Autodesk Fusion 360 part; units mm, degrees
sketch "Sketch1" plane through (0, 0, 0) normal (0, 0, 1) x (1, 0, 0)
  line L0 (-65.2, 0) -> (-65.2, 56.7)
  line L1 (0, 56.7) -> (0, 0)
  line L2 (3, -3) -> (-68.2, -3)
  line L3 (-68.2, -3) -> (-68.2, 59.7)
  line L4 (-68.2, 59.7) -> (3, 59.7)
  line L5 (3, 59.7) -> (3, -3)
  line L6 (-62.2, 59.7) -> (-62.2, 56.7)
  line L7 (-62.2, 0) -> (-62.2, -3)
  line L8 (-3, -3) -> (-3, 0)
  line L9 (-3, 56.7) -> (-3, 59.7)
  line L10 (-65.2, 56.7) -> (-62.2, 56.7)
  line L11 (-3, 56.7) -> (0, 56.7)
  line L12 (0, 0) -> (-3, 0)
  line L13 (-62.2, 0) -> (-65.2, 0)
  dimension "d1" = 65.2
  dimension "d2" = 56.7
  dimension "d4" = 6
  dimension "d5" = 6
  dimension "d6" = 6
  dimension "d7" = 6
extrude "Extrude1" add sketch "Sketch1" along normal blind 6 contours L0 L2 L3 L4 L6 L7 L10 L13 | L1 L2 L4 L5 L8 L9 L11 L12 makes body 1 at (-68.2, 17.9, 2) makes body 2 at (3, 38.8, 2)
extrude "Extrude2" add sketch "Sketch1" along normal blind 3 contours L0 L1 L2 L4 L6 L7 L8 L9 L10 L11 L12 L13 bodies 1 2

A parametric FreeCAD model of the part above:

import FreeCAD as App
import Part
import Sketcher
Q = App.Units.Quantity


def add_polygon(sketch, points):
    """Adds a closed chain of lines whose ends are joined by coincident constraints."""
    first, n = sketch.GeometryCount, len(points)
    for a, b in zip(points, points[1:] + points[:1]):
        sketch.addGeometry(Part.LineSegment(App.Vector(*a, 0), App.Vector(*b, 0)), False)
    for i in range(n):
        sketch.addConstraint(Sketcher.Constraint("Coincident", first + i, 2, first + (i + 1) % n, 1))

doc = App.newDocument("Part")
body = doc.addObject("PartDesign::Body", "Body")
body.AllowCompound = True

# Sketch on XY plane
sketch1 = doc.addObject("Sketcher::SketchObject", "Sketch")
body.addObject(sketch1)
sketch1.AttachmentSupport = (doc.XY_Plane, [""])
sketch1.MapMode = "FlatFace"
add_polygon(sketch1, [(-62.2, 0), (-65.2, 0), (-65.2, 56.7), (-62.2, 56.7), (-62.2, 59.7), (-68.2, 59.7), (-68.2, -3), (-62.2, -3)])  # lines 0-7
add_polygon(sketch1, [(-3, 0), (-3, -3), (3, -3), (3, 59.7), (-3, 59.7), (-3, 56.7), (0, 56.7), (0, 0)])  # lines 8-15
sketch1.addConstraint(Sketcher.Constraint("Horizontal", 0))
sketch1.addConstraint(Sketcher.Constraint("Vertical", 1))
sketch1.addConstraint(Sketcher.Constraint("Horizontal", 2))
sketch1.addConstraint(Sketcher.Constraint("Vertical", 3))
sketch1.addConstraint(Sketcher.Constraint("Horizontal", 4))
sketch1.addConstraint(Sketcher.Constraint("Vertical", 5))
sketch1.addConstraint(Sketcher.Constraint("Horizontal", 6))
sketch1.addConstraint(Sketcher.Constraint("Vertical", 7))
sketch1.addConstraint(Sketcher.Constraint("Vertical", 8))
sketch1.addConstraint(Sketcher.Constraint("Horizontal", 9))
sketch1.addConstraint(Sketcher.Constraint("Vertical", 10))
sketch1.addConstraint(Sketcher.Constraint("Horizontal", 11))
sketch1.addConstraint(Sketcher.Constraint("Vertical", 12))
sketch1.addConstraint(Sketcher.Constraint("Horizontal", 13))
sketch1.addConstraint(Sketcher.Constraint("Vertical", 14))
sketch1.addConstraint(Sketcher.Constraint("Horizontal", 15))
sketch1.addConstraint(Sketcher.Constraint("Coincident", 14, 2, -1, 1))
sketch1.addConstraint(Sketcher.Constraint("PointOnObject", 0, 2, -1))
sketch1.addConstraint(Sketcher.Constraint("Horizontal", 6, 2, 8, 2))
sketch1.addConstraint(Sketcher.Constraint("Horizontal", 4, 2, 10, 2))
sketch1.addConstraint(Sketcher.Constraint("Horizontal", 2, 2, 12, 2))
sketch1.addConstraint(Sketcher.Constraint("Vertical", 3, 2, 6, 2))
sketch1.addConstraint(Sketcher.Constraint("Vertical", 8, 2, 11, 2))
sketch1.addConstraint(Sketcher.Constraint("Equal", 6, 9))
sketch1.addConstraint(Sketcher.Constraint("Equal", 2, 13))
sketch1.addConstraint(Sketcher.Constraint("Equal", 15, 3))
sketch1.addConstraint(Sketcher.Constraint("Equal", 3, 7))
sketch1.addConstraint(Sketcher.Constraint("DistanceX", 4, 2, 4, 1, Q("6 mm")))
sketch1.addConstraint(Sketcher.Constraint("DistanceY", 1, 1, 1, 2, Q("56.7 mm")))
sketch1.addConstraint(Sketcher.Constraint("DistanceX", 0, 2, -1, 1, Q("65.2 mm")))
sketch1.addConstraint(Sketcher.Constraint("DistanceX", 5, 2, 8, 2, Q("65.2 mm")))
pad1 = doc.addObject("PartDesign::Pad", "Pad")
body.addObject(pad1)
pad1.Profile = sketch1
pad1.Length = 6

# Sketch on XY plane
sketch2 = doc.addObject("Sketcher::SketchObject", "Sketch001")
body.addObject(sketch2)
sketch2.AttachmentSupport = (doc.XY_Plane, [""])
sketch2.MapMode = "FlatFace"
add_polygon(sketch2, [(-65.2, 56.7), (-65.2, 0), (-62.2, 0), (-62.2, -3), (-3, -3), (-3, 0), (0, 0), (0, 56.7), (-3, 56.7), (-3, 59.7), (-62.2, 59.7), (-62.2, 56.7)])  # lines 0-11
sketch2.addConstraint(Sketcher.Constraint("Vertical", 0))
sketch2.addConstraint(Sketcher.Constraint("Horizontal", 1))
sketch2.addConstraint(Sketcher.Constraint("Vertical", 2))
sketch2.addConstraint(Sketcher.Constraint("Horizontal", 3))
sketch2.addConstraint(Sketcher.Constraint("Vertical", 4))
sketch2.addConstraint(Sketcher.Constraint("Horizontal", 5))
sketch2.addConstraint(Sketcher.Constraint("Vertical", 6))
sketch2.addConstraint(Sketcher.Constraint("Horizontal", 7))
sketch2.addConstraint(Sketcher.Constraint("Vertical", 8))
sketch2.addConstraint(Sketcher.Constraint("Horizontal", 9))
sketch2.addConstraint(Sketcher.Constraint("Vertical", 10))
sketch2.addConstraint(Sketcher.Constraint("Horizontal", 11))
sketch2.addConstraint(Sketcher.Constraint("Coincident", 5, 2, -1, 1))
sketch2.addConstraint(Sketcher.Constraint("PointOnObject", 0, 2, -1))
sketch2.addConstraint(Sketcher.Constraint("Horizontal", 7, 2, 10, 2))
sketch2.addConstraint(Sketcher.Constraint("Vertical", 4, 2, 7, 2))
sketch2.addConstraint(Sketcher.Constraint("Vertical", 2, 2, 9, 2))
sketch2.addConstraint(Sketcher.Constraint("Equal", 1, 5))
sketch2.addConstraint(Sketcher.Constraint("Equal", 11, 2))
sketch2.addConstraint(Sketcher.Constraint("Equal", 4, 8))
sketch2.addConstraint(Sketcher.Constraint("DistanceY", 0, 2, 0, 1, Q("56.7 mm")))
sketch2.addConstraint(Sketcher.Constraint("DistanceX", 0, 2, -1, 1, Q("65.2 mm")))
sketch2.addConstraint(Sketcher.Constraint("DistanceX", 1, 1, 1, 2, Q("3 mm")))
pad2 = doc.addObject("PartDesign::Pad", "Pad001")
body.addObject(pad2)
pad2.Profile = sketch2
pad2.Length = 3

doc.recompute()
